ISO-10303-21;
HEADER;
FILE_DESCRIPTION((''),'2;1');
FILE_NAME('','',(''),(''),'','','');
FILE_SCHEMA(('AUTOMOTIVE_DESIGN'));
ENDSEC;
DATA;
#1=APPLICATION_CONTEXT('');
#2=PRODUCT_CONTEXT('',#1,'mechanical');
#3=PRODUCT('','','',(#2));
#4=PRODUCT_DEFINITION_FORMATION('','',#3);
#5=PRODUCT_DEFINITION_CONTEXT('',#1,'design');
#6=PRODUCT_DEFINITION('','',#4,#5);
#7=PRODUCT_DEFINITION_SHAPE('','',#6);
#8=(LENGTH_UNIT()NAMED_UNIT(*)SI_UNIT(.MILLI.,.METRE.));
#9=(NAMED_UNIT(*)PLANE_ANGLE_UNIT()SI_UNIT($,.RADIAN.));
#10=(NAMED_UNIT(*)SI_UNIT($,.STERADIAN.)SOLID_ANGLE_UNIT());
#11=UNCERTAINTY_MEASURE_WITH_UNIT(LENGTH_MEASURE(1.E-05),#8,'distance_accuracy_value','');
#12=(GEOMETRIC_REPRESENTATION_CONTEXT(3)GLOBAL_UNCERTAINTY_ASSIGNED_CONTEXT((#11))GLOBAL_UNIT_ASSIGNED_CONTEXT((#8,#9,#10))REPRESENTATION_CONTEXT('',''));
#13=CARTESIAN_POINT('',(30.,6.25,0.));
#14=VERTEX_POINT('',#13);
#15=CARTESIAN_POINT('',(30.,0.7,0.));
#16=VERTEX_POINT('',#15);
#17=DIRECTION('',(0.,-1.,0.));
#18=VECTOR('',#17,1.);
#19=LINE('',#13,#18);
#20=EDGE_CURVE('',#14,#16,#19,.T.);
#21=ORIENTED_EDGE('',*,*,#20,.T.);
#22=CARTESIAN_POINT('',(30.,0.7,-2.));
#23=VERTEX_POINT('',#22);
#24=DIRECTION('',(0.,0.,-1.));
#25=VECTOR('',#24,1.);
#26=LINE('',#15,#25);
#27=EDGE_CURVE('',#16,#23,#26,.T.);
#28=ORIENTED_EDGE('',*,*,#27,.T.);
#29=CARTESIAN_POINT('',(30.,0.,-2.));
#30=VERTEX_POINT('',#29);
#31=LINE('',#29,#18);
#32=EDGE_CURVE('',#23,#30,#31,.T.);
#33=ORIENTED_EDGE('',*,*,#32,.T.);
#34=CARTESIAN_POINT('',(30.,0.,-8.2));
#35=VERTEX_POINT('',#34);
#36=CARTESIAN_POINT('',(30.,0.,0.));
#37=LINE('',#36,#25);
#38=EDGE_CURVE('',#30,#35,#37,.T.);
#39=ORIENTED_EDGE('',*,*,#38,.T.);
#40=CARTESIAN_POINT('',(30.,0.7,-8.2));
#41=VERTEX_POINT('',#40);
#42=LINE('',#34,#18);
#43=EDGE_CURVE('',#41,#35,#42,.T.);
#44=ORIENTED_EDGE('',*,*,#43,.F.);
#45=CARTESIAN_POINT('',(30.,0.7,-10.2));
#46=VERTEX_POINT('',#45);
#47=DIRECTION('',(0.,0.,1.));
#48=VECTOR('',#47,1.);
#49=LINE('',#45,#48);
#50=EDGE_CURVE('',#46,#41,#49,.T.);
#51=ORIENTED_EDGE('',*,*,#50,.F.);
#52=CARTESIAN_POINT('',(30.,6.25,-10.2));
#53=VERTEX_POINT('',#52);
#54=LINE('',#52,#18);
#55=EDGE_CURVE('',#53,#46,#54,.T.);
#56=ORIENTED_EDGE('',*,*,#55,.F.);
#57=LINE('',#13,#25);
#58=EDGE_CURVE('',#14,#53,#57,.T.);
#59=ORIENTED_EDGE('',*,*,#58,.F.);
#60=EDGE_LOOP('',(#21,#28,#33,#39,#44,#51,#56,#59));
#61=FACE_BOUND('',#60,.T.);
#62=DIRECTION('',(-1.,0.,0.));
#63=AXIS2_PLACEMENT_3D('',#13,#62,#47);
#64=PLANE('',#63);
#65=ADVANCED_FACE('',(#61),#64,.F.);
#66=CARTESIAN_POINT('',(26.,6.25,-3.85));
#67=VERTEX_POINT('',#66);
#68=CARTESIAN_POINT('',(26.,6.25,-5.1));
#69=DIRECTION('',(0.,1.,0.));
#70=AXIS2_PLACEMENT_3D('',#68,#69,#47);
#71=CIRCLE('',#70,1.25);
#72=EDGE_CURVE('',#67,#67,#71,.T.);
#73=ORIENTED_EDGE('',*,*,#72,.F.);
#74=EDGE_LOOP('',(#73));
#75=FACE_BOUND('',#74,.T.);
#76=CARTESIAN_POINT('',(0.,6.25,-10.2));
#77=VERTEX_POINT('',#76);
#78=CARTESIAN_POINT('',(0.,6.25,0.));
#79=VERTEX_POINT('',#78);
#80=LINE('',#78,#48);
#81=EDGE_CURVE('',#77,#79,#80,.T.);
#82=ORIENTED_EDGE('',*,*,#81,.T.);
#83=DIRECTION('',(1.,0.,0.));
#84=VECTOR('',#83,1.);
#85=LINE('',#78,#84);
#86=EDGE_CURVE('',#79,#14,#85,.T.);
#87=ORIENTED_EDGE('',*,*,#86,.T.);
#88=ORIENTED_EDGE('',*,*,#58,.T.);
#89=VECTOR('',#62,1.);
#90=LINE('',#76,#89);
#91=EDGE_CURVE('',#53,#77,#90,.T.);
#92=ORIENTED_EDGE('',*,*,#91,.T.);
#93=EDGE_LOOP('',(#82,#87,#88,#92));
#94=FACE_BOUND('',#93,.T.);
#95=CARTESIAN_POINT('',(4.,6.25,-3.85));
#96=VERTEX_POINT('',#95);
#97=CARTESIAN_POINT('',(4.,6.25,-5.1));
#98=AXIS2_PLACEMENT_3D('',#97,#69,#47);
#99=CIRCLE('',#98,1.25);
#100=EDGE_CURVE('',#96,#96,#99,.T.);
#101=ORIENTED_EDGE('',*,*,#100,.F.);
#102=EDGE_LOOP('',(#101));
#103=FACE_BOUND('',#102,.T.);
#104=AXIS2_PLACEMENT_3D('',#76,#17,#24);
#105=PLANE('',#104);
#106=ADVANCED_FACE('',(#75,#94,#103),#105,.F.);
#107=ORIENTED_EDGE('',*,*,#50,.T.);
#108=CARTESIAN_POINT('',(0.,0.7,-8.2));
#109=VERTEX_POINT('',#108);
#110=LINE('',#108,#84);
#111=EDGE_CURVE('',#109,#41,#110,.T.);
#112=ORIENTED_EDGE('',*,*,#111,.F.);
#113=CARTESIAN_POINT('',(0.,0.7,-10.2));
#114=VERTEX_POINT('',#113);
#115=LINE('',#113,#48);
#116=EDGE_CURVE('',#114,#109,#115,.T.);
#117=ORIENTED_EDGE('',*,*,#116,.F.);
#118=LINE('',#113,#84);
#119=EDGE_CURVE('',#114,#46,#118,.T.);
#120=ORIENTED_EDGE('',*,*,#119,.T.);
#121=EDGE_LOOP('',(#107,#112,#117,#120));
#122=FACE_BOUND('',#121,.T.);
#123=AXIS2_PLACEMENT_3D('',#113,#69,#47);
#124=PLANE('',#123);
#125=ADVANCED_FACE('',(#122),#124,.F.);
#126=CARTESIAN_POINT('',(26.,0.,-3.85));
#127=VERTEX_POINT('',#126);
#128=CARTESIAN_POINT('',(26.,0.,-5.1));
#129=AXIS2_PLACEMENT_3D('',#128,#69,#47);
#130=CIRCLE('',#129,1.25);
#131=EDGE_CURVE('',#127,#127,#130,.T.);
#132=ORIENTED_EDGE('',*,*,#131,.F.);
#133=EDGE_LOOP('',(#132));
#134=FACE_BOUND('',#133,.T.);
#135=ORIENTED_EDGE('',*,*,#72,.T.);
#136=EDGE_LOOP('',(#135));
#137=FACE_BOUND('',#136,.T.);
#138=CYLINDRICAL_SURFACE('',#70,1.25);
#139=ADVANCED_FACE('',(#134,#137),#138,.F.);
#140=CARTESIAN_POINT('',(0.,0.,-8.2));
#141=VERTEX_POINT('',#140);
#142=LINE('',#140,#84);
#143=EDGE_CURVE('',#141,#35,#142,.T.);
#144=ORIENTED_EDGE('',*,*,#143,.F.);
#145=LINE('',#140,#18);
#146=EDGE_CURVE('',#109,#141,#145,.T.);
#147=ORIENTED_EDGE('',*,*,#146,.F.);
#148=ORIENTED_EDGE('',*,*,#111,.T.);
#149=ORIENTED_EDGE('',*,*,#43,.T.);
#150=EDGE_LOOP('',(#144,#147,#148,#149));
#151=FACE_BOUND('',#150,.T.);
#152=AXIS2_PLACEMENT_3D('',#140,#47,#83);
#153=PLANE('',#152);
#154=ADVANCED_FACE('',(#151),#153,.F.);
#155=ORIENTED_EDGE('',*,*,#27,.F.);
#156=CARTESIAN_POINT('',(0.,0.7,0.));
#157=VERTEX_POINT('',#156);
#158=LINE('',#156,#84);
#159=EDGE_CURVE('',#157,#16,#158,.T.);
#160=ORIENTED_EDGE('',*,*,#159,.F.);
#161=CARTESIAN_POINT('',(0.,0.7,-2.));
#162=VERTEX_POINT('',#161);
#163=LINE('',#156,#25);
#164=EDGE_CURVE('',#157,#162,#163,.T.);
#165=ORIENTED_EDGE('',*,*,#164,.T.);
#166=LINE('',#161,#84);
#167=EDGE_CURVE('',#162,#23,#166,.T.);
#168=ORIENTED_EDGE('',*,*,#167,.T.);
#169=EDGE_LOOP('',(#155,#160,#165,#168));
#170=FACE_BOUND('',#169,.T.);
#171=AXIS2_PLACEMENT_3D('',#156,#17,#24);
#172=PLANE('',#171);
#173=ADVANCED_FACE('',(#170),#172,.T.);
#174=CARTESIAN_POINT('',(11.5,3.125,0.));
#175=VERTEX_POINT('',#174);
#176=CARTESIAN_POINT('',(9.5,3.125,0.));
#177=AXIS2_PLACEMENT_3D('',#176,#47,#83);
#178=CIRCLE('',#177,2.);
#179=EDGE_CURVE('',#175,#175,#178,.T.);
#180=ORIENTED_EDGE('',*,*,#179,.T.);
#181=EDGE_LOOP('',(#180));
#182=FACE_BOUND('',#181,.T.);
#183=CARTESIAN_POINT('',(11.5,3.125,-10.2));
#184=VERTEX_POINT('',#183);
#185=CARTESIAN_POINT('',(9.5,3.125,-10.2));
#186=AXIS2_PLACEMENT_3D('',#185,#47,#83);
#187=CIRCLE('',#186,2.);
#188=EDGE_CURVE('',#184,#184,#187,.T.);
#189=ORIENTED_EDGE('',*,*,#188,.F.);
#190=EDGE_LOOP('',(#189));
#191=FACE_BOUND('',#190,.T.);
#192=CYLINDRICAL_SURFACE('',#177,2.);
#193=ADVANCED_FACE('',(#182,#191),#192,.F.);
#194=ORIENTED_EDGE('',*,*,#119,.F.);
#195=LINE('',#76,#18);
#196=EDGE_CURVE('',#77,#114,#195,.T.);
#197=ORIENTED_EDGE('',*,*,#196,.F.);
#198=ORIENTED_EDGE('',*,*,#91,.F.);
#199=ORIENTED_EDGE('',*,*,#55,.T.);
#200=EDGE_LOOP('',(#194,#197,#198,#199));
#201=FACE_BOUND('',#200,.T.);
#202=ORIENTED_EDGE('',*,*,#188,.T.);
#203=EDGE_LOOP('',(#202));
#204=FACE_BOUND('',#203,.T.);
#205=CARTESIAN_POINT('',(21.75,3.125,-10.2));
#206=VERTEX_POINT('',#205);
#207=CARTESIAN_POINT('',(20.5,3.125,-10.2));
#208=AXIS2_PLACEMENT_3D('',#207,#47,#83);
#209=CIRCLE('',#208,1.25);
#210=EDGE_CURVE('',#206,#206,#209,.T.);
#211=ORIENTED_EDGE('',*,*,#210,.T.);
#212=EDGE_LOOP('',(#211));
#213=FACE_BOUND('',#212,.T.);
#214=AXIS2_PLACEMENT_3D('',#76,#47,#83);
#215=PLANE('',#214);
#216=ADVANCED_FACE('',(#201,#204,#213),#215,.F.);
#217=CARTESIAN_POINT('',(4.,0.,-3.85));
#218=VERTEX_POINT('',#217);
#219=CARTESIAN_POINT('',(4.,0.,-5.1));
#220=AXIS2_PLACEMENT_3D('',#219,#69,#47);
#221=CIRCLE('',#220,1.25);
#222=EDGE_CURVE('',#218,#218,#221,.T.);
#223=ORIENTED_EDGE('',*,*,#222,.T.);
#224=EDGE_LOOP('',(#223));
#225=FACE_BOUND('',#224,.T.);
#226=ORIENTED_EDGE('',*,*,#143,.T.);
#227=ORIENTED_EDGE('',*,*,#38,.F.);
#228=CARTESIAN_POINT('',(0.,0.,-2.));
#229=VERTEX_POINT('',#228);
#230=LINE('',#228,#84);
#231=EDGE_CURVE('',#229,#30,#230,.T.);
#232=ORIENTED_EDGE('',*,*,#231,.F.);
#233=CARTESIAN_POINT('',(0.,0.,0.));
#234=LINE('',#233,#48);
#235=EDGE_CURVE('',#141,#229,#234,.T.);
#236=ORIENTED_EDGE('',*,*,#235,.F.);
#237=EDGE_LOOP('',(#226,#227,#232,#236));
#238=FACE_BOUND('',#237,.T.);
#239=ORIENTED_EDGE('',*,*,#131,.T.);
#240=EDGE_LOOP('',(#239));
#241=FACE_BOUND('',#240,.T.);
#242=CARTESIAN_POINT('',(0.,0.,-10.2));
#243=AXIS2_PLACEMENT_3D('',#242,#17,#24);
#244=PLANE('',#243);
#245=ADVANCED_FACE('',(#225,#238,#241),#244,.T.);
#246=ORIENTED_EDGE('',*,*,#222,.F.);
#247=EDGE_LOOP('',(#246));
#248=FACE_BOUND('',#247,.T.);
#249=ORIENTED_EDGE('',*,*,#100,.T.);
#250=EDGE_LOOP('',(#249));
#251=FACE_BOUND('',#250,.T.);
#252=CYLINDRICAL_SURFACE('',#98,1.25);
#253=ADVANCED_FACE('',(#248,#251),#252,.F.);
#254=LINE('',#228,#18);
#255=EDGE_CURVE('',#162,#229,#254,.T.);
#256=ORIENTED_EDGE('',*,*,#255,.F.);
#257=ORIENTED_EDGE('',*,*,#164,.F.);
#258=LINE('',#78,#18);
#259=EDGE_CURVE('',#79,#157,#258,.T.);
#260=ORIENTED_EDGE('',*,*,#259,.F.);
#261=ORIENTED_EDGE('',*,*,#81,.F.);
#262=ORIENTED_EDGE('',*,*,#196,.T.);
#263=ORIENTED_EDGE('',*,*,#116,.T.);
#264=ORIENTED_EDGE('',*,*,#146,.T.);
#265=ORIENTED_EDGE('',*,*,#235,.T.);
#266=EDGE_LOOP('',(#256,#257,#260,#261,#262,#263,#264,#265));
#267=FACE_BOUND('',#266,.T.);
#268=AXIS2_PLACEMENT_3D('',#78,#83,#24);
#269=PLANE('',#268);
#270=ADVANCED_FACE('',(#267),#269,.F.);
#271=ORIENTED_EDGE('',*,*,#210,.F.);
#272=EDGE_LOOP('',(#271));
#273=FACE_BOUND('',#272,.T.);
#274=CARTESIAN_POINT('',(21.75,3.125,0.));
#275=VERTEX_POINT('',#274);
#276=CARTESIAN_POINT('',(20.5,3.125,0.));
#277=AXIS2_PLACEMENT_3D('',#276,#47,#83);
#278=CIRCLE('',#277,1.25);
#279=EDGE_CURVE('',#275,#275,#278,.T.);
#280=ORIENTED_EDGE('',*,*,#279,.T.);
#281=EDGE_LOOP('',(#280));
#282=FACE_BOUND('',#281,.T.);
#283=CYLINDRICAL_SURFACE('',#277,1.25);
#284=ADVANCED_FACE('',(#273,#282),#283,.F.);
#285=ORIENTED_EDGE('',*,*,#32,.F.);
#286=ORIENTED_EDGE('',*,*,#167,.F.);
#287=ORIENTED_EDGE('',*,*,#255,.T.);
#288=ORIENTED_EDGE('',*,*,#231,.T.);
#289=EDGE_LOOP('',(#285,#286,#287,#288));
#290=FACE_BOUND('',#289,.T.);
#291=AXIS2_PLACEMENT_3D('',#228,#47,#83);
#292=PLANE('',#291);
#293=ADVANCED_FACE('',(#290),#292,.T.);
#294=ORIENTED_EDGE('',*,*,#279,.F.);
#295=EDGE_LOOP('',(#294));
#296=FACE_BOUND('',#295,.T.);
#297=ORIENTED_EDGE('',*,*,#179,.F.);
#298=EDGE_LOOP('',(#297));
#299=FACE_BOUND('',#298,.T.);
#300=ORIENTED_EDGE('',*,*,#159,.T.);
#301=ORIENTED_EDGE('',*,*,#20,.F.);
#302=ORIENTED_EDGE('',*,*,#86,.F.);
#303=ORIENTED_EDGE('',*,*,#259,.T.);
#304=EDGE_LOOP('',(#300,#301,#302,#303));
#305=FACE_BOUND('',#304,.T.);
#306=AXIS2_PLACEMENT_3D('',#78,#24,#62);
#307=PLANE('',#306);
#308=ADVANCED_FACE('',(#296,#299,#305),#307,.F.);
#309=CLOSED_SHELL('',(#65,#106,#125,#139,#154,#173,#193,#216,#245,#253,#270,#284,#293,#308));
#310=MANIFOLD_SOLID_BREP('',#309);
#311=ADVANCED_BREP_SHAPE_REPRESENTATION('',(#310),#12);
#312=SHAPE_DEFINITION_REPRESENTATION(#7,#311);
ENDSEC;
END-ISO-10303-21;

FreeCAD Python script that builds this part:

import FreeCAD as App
import Part
import Sketcher


def add_polygon(sketch, points):
    """Adds a closed chain of lines whose ends are joined by coincident constraints."""
    first, n = sketch.GeometryCount, len(points)
    for a, b in zip(points, points[1:] + points[:1]):
        sketch.addGeometry(Part.LineSegment(App.Vector(*a, 0), App.Vector(*b, 0)), False)
    for i in range(n):
        sketch.addConstraint(Sketcher.Constraint("Coincident", first + i, 2, first + (i + 1) % n, 1))

doc = App.newDocument("Part")
body = doc.addObject("PartDesign::Body", "Body")

sketch1 = body.newObject("Sketcher::SketchObject", "Sketch")
sketch1.AttachmentSupport = (doc.getObject("XZ_Plane"), [""])
sketch1.MapMode = "FlatFace"
add_polygon(sketch1, [(0, -10), (0, 0), (30, 0), (30, -10)])
sketch1.addConstraint([
    Sketcher.Constraint("Vertical", 0),
    Sketcher.Constraint("Horizontal", 1),
    Sketcher.Constraint("Vertical", 2),
    Sketcher.Constraint("Horizontal", 3),
    Sketcher.Constraint("Coincident", 0, 2, -1, 1),
    Sketcher.Constraint("DistanceX", 1, 1, 1, 2, 30.0),
    Sketcher.Constraint("DistanceY", 0, 1, 0, 2, 10.2),
])
pad1 = body.newObject("PartDesign::Pad", "Pad")
pad1.Profile = sketch1
pad1.Length = 6.25
pad1.Reversed = True

sketch2 = body.newObject("Sketcher::SketchObject", "Sketch001")
sketch2.AttachmentSupport = (doc.getObject("XY_Plane"), [""])
sketch2.MapMode = "FlatFace"
sketch2.addGeometry(Part.Circle(App.Vector(9.5, 3.1, 0), App.Vector(0, 0, 1), 2), False)
sketch2.addConstraint([
    Sketcher.Constraint("Diameter", 0, 4.0),
    Sketcher.Constraint("DistanceX", -1, 1, 0, 3, 9.5),
    Sketcher.Constraint("DistanceY", -1, 1, 0, 3, 3.125),
])
doc.recompute()
hole = body.newObject("PartDesign::Hole", "Hole")
hole.Profile = sketch2
hole.ThreadType = "None"
hole.Diameter = 4
hole.DepthType = "ThroughAll"

sketch3 = body.newObject("Sketcher::SketchObject", "Sketch002")
sketch3.AttachmentSupport = (doc.getObject("XY_Plane"), [""])
sketch3.MapMode = "FlatFace"
sketch3.addGeometry(Part.Circle(App.Vector(20.5, 3.1, 0), App.Vector(0, 0, 1), 1.2), False)
sketch3.addConstraint([
    Sketcher.Constraint("Diameter", 0, 2.5),
    Sketcher.Constraint("DistanceX", -1, 1, 0, 3, 20.5),
    Sketcher.Constraint("DistanceY", -1, 1, 0, 3, 3.125),
])
doc.recompute()
hole2 = body.newObject("PartDesign::Hole", "Hole001")
hole2.Profile = sketch3
hole2.ThreadType = "None"
hole2.Diameter = 2.5
hole2.DepthType = "ThroughAll"

sketch4 = body.newObject("Sketcher::SketchObject", "Sketch003")
sketch4.AttachmentSupport = (doc.getObject("XZ_Plane"), [""])
sketch4.MapMode = "FlatFace"
sketch4.AttachmentOffset = App.Placement(App.Vector(0, 0, -6.25), App.Rotation())
sketch4.addGeometry([
    Part.Circle(App.Vector(4, -5.1, 0), App.Vector(0, 0, 1), 1.2),
    Part.Circle(App.Vector(26, -5.1, 0), App.Vector(0, 0, 1), 1.2),
], False)
sketch4.addConstraint([
    Sketcher.Constraint("Equal", 0, 1),
    Sketcher.Constraint("Horizontal", 0, 3, 1, 3),
    Sketcher.Constraint("Diameter", 0, 2.5),
    Sketcher.Constraint("DistanceX", -1, 1, 0, 3, 4.0),
    Sketcher.Constraint("DistanceX", -1, 1, 1, 3, 26.0),
    Sketcher.Constraint("DistanceY", 0, 3, -1, 1, 5.1),
])
doc.recompute()
hole3 = body.newObject("PartDesign::Hole", "Hole002")
hole3.Profile = sketch4
hole3.ThreadType = "None"
hole3.Diameter = 2.5
hole3.DepthType = "ThroughAll"
hole3.Reversed = True

sketch5 = body.newObject("Sketcher::SketchObject", "Sketch004")
sketch5.AttachmentSupport = (doc.getObject("YZ_Plane"), [""])
sketch5.MapMode = "FlatFace"
sketch5.AttachmentOffset = App.Placement(App.Vector(0, 0, 30), App.Rotation())
add_polygon(sketch5, [(0.7, -8.2), (0, -8.2), (0, -10.2), (0.7, -10.2)])
sketch5.addConstraint([
    Sketcher.Constraint("Horizontal", 0),
    Sketcher.Constraint("Vertical", 1),
    Sketcher.Constraint("Horizontal", 2),
    Sketcher.Constraint("Vertical", 3),
    Sketcher.Constraint("PointOnObject", 0, 2, -2),
    Sketcher.Constraint("DistanceY", 1, 2, 1, 1, 2.0),
    Sketcher.Constraint("DistanceX", 0, 2, 0, 1, 0.7),
    Sketcher.Constraint("DistanceY", 0, 2, -1, 1, 8.2),
])
pocket1 = body.newObject("PartDesign::Pocket", "Pocket")
pocket1.Profile = sketch5
pocket1.Type = "ThroughAll"
doc.recompute()

datumplane = body.newObject("PartDesign::Plane", "DatumPlane")
datumplane.AttachmentSupport = (doc.getObject("XY_Plane"), [""])
datumplane.MapMode = "FlatFace"
datumplane.AttachmentOffset = App.Placement(App.Vector(0, 0, -5.1), App.Rotation())
mirrored = body.newObject("PartDesign::Mirrored", "Mirrored")
mirrored.Originals = [pocket1]
mirrored.MirrorPlane = (datumplane, [""])
body.Tip = mirrored

doc.recompute()
